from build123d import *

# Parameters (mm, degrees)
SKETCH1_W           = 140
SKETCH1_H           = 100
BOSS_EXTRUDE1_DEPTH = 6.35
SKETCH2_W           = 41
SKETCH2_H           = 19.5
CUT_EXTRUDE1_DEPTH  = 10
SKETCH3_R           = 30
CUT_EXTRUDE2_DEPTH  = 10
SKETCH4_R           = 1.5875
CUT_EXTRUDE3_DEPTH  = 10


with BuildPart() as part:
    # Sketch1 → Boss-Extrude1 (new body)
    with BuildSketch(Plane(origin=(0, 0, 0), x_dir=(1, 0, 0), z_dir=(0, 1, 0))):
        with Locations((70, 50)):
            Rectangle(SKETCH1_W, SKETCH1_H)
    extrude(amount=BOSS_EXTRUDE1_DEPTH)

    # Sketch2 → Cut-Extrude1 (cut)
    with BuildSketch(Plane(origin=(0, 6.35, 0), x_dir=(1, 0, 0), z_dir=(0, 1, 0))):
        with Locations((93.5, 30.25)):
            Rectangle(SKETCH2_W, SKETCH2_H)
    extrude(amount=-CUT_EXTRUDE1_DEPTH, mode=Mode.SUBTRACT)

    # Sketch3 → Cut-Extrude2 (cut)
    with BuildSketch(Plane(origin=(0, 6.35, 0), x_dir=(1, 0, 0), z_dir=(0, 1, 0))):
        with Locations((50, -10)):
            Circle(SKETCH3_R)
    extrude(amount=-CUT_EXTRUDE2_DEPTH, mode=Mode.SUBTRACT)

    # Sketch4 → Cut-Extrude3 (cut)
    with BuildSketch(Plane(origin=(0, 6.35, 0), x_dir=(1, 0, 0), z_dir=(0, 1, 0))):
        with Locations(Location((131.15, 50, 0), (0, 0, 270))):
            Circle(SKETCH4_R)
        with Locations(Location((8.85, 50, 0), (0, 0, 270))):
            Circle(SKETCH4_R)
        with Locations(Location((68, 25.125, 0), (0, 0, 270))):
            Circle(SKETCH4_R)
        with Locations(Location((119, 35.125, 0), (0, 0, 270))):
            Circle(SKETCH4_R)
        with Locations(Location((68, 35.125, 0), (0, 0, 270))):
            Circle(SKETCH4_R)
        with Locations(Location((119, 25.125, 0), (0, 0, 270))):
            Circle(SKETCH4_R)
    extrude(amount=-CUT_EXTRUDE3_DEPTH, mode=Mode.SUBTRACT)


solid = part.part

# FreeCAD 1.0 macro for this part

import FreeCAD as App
import Part
import Sketcher

V = App.Vector
Q = App.Units.Quantity

doc = App.newDocument("Part")
body = doc.addObject("PartDesign::Body", "Body")

# Sketch on XZ plane
sketch1 = body.newObject("Sketcher::SketchObject", "Sketch")
sketch1.AttachmentSupport = (doc.getObject("XZ_Plane"), [""])
sketch1.MapMode = "FlatFace"
sketch1.addGeometry([
    Part.LineSegment(V(0, -100, 0), V(0, 0, 0)),
    Part.LineSegment(V(0, 0, 0), V(140, 0, 0)),
    Part.LineSegment(V(140, 0, 0), V(140, -100, 0)),
    Part.LineSegment(V(140, -100, 0), V(0, -100, 0)),
], False)
sketch1.addConstraint([
    Sketcher.Constraint("Coincident", 0, 2, 1, 1),
    Sketcher.Constraint("Coincident", 1, 2, 2, 1),
    Sketcher.Constraint("Coincident", 2, 2, 3, 1),
    Sketcher.Constraint("Coincident", 3, 2, 0, 1),
    Sketcher.Constraint("Vertical", 0),
    Sketcher.Constraint("Horizontal", 1),
    Sketcher.Constraint("Vertical", 2),
    Sketcher.Constraint("Horizontal", 3),
    Sketcher.Constraint("Coincident", 0, 2, -1, 1),
    Sketcher.Constraint("DistanceX", 1, 1, 1, 2, Q("140 mm")),
    Sketcher.Constraint("DistanceY", 0, 1, 0, 2, Q("100 mm")),
])
pad1 = body.newObject("PartDesign::Pad", "Pad")
pad1.Profile = sketch1
pad1.Length = 6.35
pad1.Reversed = True

# Sketch on XZ plane
sketch2 = body.newObject("Sketcher::SketchObject", "Sketch001")
sketch2.AttachmentSupport = (doc.getObject("XZ_Plane"), [""])
sketch2.MapMode = "FlatFace"
sketch2.AttachmentOffset = App.Placement(V(0, 0, -6.35), App.Rotation())
sketch2.addGeometry([
    Part.LineSegment(V(73, -40, 0), V(73, -20, 0)),
    Part.LineSegment(V(73, -20, 0), V(114, -20, 0)),
    Part.LineSegment(V(114, -20, 0), V(114, -40, 0)),
    Part.LineSegment(V(114, -40, 0), V(73, -40, 0)),
], False)
sketch2.addConstraint([
    Sketcher.Constraint("Coincident", 0, 2, 1, 1),
    Sketcher.Constraint("Coincident", 1, 2, 2, 1),
    Sketcher.Constraint("Coincident", 2, 2, 3, 1),
    Sketcher.Constraint("Coincident", 3, 2, 0, 1),
    Sketcher.Constraint("Vertical", 0),
    Sketcher.Constraint("Horizontal", 1),
    Sketcher.Constraint("Vertical", 2),
    Sketcher.Constraint("Horizontal", 3),
    Sketcher.Constraint("DistanceX", 1, 1, 1, 2, Q("41 mm")),
    Sketcher.Constraint("DistanceY", 0, 1, 0, 2, Q("19.5 mm")),
    Sketcher.Constraint("DistanceX", -1, 1, 0, 2, Q("73 mm")),
    Sketcher.Constraint("DistanceY", 2, 2, -1, 1, Q("40 mm")),
])
pocket1 = body.newObject("PartDesign::Pocket", "Pocket")
pocket1.Profile = sketch2
pocket1.Length = 10
pocket1.Reversed = True

# Sketch on XZ plane
sketch3 = body.newObject("Sketcher::SketchObject", "Sketch002")
sketch3.AttachmentSupport = (doc.getObject("XZ_Plane"), [""])
sketch3.MapMode = "FlatFace"
sketch3.AttachmentOffset = App.Placement(V(0, 0, -6.35), App.Rotation())
sketch3.addGeometry(Part.Circle(V(50, 10, 0), V(0, 0, 1), 30), False)
sketch3.addConstraint([
    Sketcher.Constraint("Diameter", 0, Q("60 mm")),
    Sketcher.Constraint("DistanceX", -1, 1, 0, 3, Q("50 mm")),
    Sketcher.Constraint("DistanceY", -1, 1, 0, 3, Q("10 mm")),
])
pocket2 = body.newObject("PartDesign::Pocket", "Pocket001")
pocket2.Profile = sketch3
pocket2.Length = 10
pocket2.Reversed = True

# Sketch on XZ plane
sketch4 = body.newObject("Sketcher::SketchObject", "Sketch003")
sketch4.AttachmentSupport = (doc.getObject("XZ_Plane"), [""])
sketch4.MapMode = "FlatFace"
sketch4.AttachmentOffset = App.Placement(V(0, 0, -6.35), App.Rotation())
sketch4.addGeometry([
    Part.Circle(V(131.2, -50, 0), V(0, 0, 1), 1.6),  # 0
    Part.Circle(V(8.8, -50, 0), V(0, 0, 1), 1.6),  # 1
    Part.Circle(V(68, -25.1, 0), V(0, 0, 1), 1.6),  # 2
    Part.Circle(V(119, -35.1, 0), V(0, 0, 1), 1.6),  # 3
    Part.Circle(V(68, -35.1, 0), V(0, 0, 1), 1.6),  # 4
    Part.Circle(V(119, -25.1, 0), V(0, 0, 1), 1.6),  # 5
], False)
sketch4.addConstraint([
    Sketcher.Constraint("Equal", 0, 1),
    Sketcher.Constraint("Equal", 1, 2),
    Sketcher.Constraint("Equal", 2, 3),
    Sketcher.Constraint("Equal", 3, 4),
    Sketcher.Constraint("Equal", 4, 5),
    Sketcher.Constraint("Horizontal", 0, 3, 1, 3),
    Sketcher.Constraint("Horizontal", 3, 3, 4, 3),
    Sketcher.Constraint("Horizontal", 2, 3, 5, 3),
    Sketcher.Constraint("Vertical", 2, 3, 4, 3),
    Sketcher.Constraint("Vertical", 3, 3, 5, 3),
    Sketcher.Constraint("Diameter", 0, Q("3.175 mm")),
    Sketcher.Constraint("DistanceY", 0, 3, -1, 1, Q("50 mm")),
    Sketcher.Constraint("DistanceX", -1, 1, 2, 3, Q("68 mm")),
    Sketcher.Constraint("DistanceX", -1, 1, 3, 3, Q("119 mm")),
    Sketcher.Constraint("DistanceY", 3, 3, 2, 3, Q("10 mm")),
    Sketcher.Constraint("DistanceX", 1, 3, 0, 3, Q("122.3 mm")),
    Sketcher.Constraint("DistanceX", -1, 1, 0, 3, Q("131.15 mm")),
    Sketcher.Constraint("DistanceY", 2, 3, -1, 1, Q("25.125 mm")),
])
pocket3 = body.newObject("PartDesign::Pocket", "Pocket002")
pocket3.Profile = sketch4
pocket3.Length = 10
pocket3.Reversed = True

doc.recompute()
